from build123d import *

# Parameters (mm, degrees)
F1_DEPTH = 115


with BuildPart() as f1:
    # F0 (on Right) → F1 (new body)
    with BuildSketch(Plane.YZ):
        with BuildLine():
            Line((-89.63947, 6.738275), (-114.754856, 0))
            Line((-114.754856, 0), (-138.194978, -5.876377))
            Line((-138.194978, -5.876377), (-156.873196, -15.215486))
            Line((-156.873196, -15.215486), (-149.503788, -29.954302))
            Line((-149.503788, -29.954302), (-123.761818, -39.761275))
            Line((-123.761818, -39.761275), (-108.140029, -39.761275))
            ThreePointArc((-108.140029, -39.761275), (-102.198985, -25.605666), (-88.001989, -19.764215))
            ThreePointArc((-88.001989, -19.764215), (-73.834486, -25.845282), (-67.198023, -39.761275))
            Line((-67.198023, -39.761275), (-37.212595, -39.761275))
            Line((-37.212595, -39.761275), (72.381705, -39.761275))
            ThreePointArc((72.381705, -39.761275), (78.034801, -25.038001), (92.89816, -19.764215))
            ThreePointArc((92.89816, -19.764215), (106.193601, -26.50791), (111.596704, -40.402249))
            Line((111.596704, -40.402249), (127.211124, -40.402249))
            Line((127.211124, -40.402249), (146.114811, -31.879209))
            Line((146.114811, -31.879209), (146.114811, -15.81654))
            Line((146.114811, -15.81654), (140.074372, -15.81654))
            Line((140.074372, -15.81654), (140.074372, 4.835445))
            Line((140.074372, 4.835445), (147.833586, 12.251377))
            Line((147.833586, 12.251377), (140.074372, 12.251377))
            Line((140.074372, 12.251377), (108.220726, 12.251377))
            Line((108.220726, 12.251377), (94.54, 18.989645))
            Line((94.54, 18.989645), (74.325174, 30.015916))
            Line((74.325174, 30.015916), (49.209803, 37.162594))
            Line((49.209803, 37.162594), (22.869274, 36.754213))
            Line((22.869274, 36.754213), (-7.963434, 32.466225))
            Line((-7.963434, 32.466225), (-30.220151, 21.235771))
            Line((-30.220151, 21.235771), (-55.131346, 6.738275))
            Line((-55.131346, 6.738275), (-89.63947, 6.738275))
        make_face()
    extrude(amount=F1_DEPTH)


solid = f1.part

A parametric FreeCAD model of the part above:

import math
import FreeCAD as App
import Part
import Sketcher

V = App.Vector
Q = App.Units.Quantity

doc = App.newDocument("Part")
body = doc.addObject("PartDesign::Body", "Body")

sketch1 = body.newObject("Sketcher::SketchObject", "Sketch")
sketch1.AttachmentSupport = (doc.getObject("YZ_Plane"), [""])
sketch1.MapMode = "FlatFace"
sketch1.addGeometry(Part.LineSegment(V(-90, 7, 0), V(-115, 0, 0)), False)
sketch1.addGeometry(Part.LineSegment(V(-115, 0, 0), V(-138, -6, 0)), False)
sketch1.addGeometry(Part.LineSegment(V(-138, -6, 0), V(-157, -15, 0)), False)
sketch1.addGeometry(Part.LineSegment(V(-157, -15, 0), V(-150, -30, 0)), False)
sketch1.addGeometry(Part.LineSegment(V(-150, -30, 0), V(-124, -40, 0)), False)
sketch1.addGeometry(Part.LineSegment(V(-124, -40, 0), V(-108, -40, 0)), False)
sketch1.addGeometry(Part.ArcOfCircle(Part.Circle(V(-88, -40, 0), V(0, 0, 1), 20), math.radians(90), math.radians(180)), False)
sketch1.addGeometry(Part.ArcOfCircle(Part.Circle(V(-89, -42, 0), V(0, 0, 1), 22), math.radians(5), math.radians(87)), False)
sketch1.addGeometry(Part.LineSegment(V(-67, -40, 0), V(72, -40, 0)), False)
sketch1.addGeometry(Part.ArcOfCircle(Part.Circle(V(91, -39, 0), V(0, 0, 1), 19), math.radians(85), math.radians(184)), False)
sketch1.addGeometry(Part.ArcOfCircle(Part.Circle(V(91, -41, 0), V(0, 0, 1), 21), math.radians(0), math.radians(84)), False)
sketch1.addGeometry(Part.LineSegment(V(112, -40, 0), V(127, -40, 0)), False)
sketch1.addGeometry(Part.LineSegment(V(127, -40, 0), V(146, -32, 0)), False)
sketch1.addGeometry(Part.LineSegment(V(146, -32, 0), V(146, -16, 0)), False)
sketch1.addGeometry(Part.LineSegment(V(146, -16, 0), V(140, -16, 0)), False)
sketch1.addGeometry(Part.LineSegment(V(140, -16, 0), V(140, 5, 0)), False)
sketch1.addGeometry(Part.LineSegment(V(140, 5, 0), V(148, 12, 0)), False)
sketch1.addGeometry(Part.LineSegment(V(148, 12, 0), V(108, 12, 0)), False)
sketch1.addGeometry(Part.LineSegment(V(108, 12, 0), V(95, 19, 0)), False)
sketch1.addGeometry(Part.LineSegment(V(95, 19, 0), V(74, 30, 0)), False)
sketch1.addGeometry(Part.LineSegment(V(74, 30, 0), V(49, 37, 0)), False)
sketch1.addGeometry(Part.LineSegment(V(49, 37, 0), V(23, 37, 0)), False)
sketch1.addGeometry(Part.LineSegment(V(23, 37, 0), V(-8, 32, 0)), False)
sketch1.addGeometry(Part.LineSegment(V(-8, 32, 0), V(-30, 21, 0)), False)
sketch1.addGeometry(Part.LineSegment(V(-30, 21, 0), V(-55, 7, 0)), False)
sketch1.addGeometry(Part.LineSegment(V(-55, 7, 0), V(-90, 7, 0)), False)
sketch1.addConstraint(Sketcher.Constraint("Coincident", 0, 2, 1, 1))
sketch1.addConstraint(Sketcher.Constraint("Coincident", 1, 2, 2, 1))
sketch1.addConstraint(Sketcher.Constraint("Coincident", 2, 2, 3, 1))
sketch1.addConstraint(Sketcher.Constraint("Coincident", 3, 2, 4, 1))
sketch1.addConstraint(Sketcher.Constraint("Coincident", 4, 2, 5, 1))
sketch1.addConstraint(Sketcher.Constraint("Coincident", 5, 2, 6, 2))
sketch1.addConstraint(Sketcher.Constraint("Coincident", 6, 1, 7, 2))
sketch1.addConstraint(Sketcher.Constraint("Coincident", 7, 1, 8, 1))
sketch1.addConstraint(Sketcher.Constraint("Coincident", 8, 2, 9, 2))
sketch1.addConstraint(Sketcher.Constraint("Coincident", 9, 1, 10, 2))
sketch1.addConstraint(Sketcher.Constraint("Coincident", 10, 1, 11, 1))
sketch1.addConstraint(Sketcher.Constraint("Coincident", 11, 2, 12, 1))
sketch1.addConstraint(Sketcher.Constraint("Coincident", 12, 2, 13, 1))
sketch1.addConstraint(Sketcher.Constraint("Coincident", 13, 2, 14, 1))
sketch1.addConstraint(Sketcher.Constraint("Coincident", 14, 2, 15, 1))
sketch1.addConstraint(Sketcher.Constraint("Coincident", 15, 2, 16, 1))
sketch1.addConstraint(Sketcher.Constraint("Coincident", 16, 2, 17, 1))
sketch1.addConstraint(Sketcher.Constraint("Coincident", 17, 2, 18, 1))
sketch1.addConstraint(Sketcher.Constraint("Coincident", 18, 2, 19, 1))
sketch1.addConstraint(Sketcher.Constraint("Coincident", 19, 2, 20, 1))
sketch1.addConstraint(Sketcher.Constraint("Coincident", 20, 2, 21, 1))
sketch1.addConstraint(Sketcher.Constraint("Coincident", 21, 2, 22, 1))
sketch1.addConstraint(Sketcher.Constraint("Coincident", 22, 2, 23, 1))
sketch1.addConstraint(Sketcher.Constraint("Coincident", 23, 2, 24, 1))
sketch1.addConstraint(Sketcher.Constraint("Coincident", 24, 2, 25, 1))
sketch1.addConstraint(Sketcher.Constraint("Coincident", 25, 2, 0, 1))
sketch1.addConstraint(Sketcher.Constraint("Horizontal", 5))
sketch1.addConstraint(Sketcher.Constraint("Horizontal", 8))
sketch1.addConstraint(Sketcher.Constraint("Horizontal", 11))
sketch1.addConstraint(Sketcher.Constraint("Vertical", 13))
sketch1.addConstraint(Sketcher.Constraint("Horizontal", 14))
sketch1.addConstraint(Sketcher.Constraint("Vertical", 15))
sketch1.addConstraint(Sketcher.Constraint("Horizontal", 17))
sketch1.addConstraint(Sketcher.Constraint("Horizontal", 25))
sketch1.addConstraint(Sketcher.Constraint("PointOnObject", 0, 2, -1))
sketch1.addConstraint(Sketcher.Constraint("Perpendicular", 2, 3))
sketch1.addConstraint(Sketcher.Constraint("Horizontal", 5, 2, 7, 1))
sketch1.addConstraint(Sketcher.Constraint("Horizontal", 6, 1, 9, 1))
sketch1.addConstraint(Sketcher.Constraint("DistanceX", -1, 1, 18, 2, Q("94.54 mm")))
sketch1.addConstraint(Sketcher.Constraint("Radius", 7, Q("21.87232 mm")))
sketch1.addConstraint(Sketcher.Constraint("Radius", 9, Q("18.849751 mm")))
sketch1.addConstraint(Sketcher.Constraint("Radius", 10, Q("20.86835 mm")))
sketch1.addConstraint(Sketcher.Constraint("Radius", 6, Q("20.114285 mm")))
sketch1.addConstraint(Sketcher.Constraint("DistanceY", 6, 3, 2, 2, Q("24.663 mm")))
sketch1.addConstraint(Sketcher.Constraint("DistanceX", 8, 2, 10, 1, Q("39.214999 mm")))
sketch1.addConstraint(Sketcher.Constraint("DistanceX", 5, 1, 5, 2, Q("15.621789 mm")))
sketch1.addConstraint(Sketcher.Constraint("DistanceX", 11, 1, 11, 2, Q("15.61442 mm")))
sketch1.addConstraint(Sketcher.Constraint("DistanceX", 14, 2, 14, 1, Q("6.040439 mm")))
sketch1.addConstraint(Sketcher.Constraint("DistanceX", 17, 2, 17, 1, Q("39.61286 mm")))
sketch1.addConstraint(Sketcher.Constraint("DistanceY", 13, 1, 13, 2, Q("16.062669 mm")))
sketch1.addConstraint(Sketcher.Constraint("DistanceY", 3, 2, -1, 1, Q("29.954302 mm")))
sketch1.addConstraint(Sketcher.Constraint("DistanceX", 7, 3, 7, 1, Q("21.793699 mm")))
sketch1.addConstraint(Sketcher.Constraint("DistanceY", 15, 2, 18, 2, Q("14.1542 mm")))
sketch1.addConstraint(Sketcher.Constraint("DistanceX", 19, 2, 15, 2, Q("65.749198 mm")))
sketch1.addConstraint(Sketcher.Constraint("DistanceX", 20, 2, 8, 2, Q("23.171902 mm")))
sketch1.addConstraint(Sketcher.Constraint("DistanceX", 21, 2, 19, 2, Q("51.4559 mm")))
sketch1.addConstraint(Sketcher.Constraint("DistanceY", 7, 1, 22, 2, Q("72.2275 mm")))
sketch1.addConstraint(Sketcher.Constraint("Distance", 4, Q("27.546792 mm")))
sketch1.addConstraint(Sketcher.Constraint("Distance", 12, Q("20.736239 mm")))
sketch1.addConstraint(Sketcher.Constraint("Distance", 18, Q("15.250132 mm")))
sketch1.addConstraint(Sketcher.Constraint("Distance", 19, Q("23.02646 mm")))
sketch1.addConstraint(Sketcher.Constraint("Distance", 20, Q("26.112389 mm")))
sketch1.addConstraint(Sketcher.Constraint("Distance", 22, Q("31.129451 mm")))
sketch1.addConstraint(Sketcher.Constraint("Distance", 23, Q("24.929592 mm")))
sketch1.addConstraint(Sketcher.Constraint("DistanceX", 8, 1, 8, 2, Q("139.579728 mm")))
sketch1.addConstraint(Sketcher.Constraint("DistanceX", 25, 2, 25, 1, Q("34.508124 mm")))
sketch1.addConstraint(Sketcher.Constraint("DistanceY", 15, 1, 15, 2, Q("20.651985 mm")))
sketch1.addConstraint(Sketcher.Constraint("DistanceX", 7, 3, -1, 1, Q("88.991722 mm")))
sketch1.addConstraint(Sketcher.Constraint("DistanceY", 7, 3, -1, 1, Q("41.61413 mm")))
sketch1.addConstraint(Sketcher.Constraint("DistanceY", 10, 3, -1, 1, Q("40.519489 mm")))
sketch1.addConstraint(Sketcher.Constraint("DistanceX", 1, 2, -1, 1, Q("138.194978 mm")))
sketch1.addConstraint(Sketcher.Constraint("DistanceX", 4, 2, -1, 1, Q("123.761818 mm")))
sketch1.addConstraint(Sketcher.Constraint("DistanceX", 6, 1, -1, 1, Q("88.001989 mm")))
sketch1.addConstraint(Sketcher.Constraint("DistanceY", 10, 1, -1, 1, Q("40.402249 mm")))
sketch1.addConstraint(Sketcher.Constraint("DistanceX", -1, 1, 12, 2, Q("146.114811 mm")))
sketch1.addConstraint(Sketcher.Constraint("DistanceX", 23, 2, -1, 1, Q("30.220151 mm")))
sketch1.addConstraint(Sketcher.Constraint("DistanceY", -1, 1, 23, 2, Q("21.235771 mm")))
sketch1.addConstraint(Sketcher.Constraint("DistanceX", 25, 2, -1, 1, Q("89.63947 mm")))
sketch1.addConstraint(Sketcher.Constraint("DistanceX", 0, 2, 6, 3, Q("26.728771 mm")))
sketch1.addConstraint(Sketcher.Constraint("DistanceY", 6, 3, 1, 2, Q("34.002109 mm")))
sketch1.addConstraint(Sketcher.Constraint("DistanceY", 15, 2, 16, 2, Q("7.415932 mm")))
sketch1.addConstraint(Sketcher.Constraint("DistanceY", 6, 1, 24, 2, Q("26.50249 mm")))
pad1 = body.newObject("PartDesign::Pad", "Pad")
pad1.Profile = sketch1
pad1.Length = 115

doc.recompute()
